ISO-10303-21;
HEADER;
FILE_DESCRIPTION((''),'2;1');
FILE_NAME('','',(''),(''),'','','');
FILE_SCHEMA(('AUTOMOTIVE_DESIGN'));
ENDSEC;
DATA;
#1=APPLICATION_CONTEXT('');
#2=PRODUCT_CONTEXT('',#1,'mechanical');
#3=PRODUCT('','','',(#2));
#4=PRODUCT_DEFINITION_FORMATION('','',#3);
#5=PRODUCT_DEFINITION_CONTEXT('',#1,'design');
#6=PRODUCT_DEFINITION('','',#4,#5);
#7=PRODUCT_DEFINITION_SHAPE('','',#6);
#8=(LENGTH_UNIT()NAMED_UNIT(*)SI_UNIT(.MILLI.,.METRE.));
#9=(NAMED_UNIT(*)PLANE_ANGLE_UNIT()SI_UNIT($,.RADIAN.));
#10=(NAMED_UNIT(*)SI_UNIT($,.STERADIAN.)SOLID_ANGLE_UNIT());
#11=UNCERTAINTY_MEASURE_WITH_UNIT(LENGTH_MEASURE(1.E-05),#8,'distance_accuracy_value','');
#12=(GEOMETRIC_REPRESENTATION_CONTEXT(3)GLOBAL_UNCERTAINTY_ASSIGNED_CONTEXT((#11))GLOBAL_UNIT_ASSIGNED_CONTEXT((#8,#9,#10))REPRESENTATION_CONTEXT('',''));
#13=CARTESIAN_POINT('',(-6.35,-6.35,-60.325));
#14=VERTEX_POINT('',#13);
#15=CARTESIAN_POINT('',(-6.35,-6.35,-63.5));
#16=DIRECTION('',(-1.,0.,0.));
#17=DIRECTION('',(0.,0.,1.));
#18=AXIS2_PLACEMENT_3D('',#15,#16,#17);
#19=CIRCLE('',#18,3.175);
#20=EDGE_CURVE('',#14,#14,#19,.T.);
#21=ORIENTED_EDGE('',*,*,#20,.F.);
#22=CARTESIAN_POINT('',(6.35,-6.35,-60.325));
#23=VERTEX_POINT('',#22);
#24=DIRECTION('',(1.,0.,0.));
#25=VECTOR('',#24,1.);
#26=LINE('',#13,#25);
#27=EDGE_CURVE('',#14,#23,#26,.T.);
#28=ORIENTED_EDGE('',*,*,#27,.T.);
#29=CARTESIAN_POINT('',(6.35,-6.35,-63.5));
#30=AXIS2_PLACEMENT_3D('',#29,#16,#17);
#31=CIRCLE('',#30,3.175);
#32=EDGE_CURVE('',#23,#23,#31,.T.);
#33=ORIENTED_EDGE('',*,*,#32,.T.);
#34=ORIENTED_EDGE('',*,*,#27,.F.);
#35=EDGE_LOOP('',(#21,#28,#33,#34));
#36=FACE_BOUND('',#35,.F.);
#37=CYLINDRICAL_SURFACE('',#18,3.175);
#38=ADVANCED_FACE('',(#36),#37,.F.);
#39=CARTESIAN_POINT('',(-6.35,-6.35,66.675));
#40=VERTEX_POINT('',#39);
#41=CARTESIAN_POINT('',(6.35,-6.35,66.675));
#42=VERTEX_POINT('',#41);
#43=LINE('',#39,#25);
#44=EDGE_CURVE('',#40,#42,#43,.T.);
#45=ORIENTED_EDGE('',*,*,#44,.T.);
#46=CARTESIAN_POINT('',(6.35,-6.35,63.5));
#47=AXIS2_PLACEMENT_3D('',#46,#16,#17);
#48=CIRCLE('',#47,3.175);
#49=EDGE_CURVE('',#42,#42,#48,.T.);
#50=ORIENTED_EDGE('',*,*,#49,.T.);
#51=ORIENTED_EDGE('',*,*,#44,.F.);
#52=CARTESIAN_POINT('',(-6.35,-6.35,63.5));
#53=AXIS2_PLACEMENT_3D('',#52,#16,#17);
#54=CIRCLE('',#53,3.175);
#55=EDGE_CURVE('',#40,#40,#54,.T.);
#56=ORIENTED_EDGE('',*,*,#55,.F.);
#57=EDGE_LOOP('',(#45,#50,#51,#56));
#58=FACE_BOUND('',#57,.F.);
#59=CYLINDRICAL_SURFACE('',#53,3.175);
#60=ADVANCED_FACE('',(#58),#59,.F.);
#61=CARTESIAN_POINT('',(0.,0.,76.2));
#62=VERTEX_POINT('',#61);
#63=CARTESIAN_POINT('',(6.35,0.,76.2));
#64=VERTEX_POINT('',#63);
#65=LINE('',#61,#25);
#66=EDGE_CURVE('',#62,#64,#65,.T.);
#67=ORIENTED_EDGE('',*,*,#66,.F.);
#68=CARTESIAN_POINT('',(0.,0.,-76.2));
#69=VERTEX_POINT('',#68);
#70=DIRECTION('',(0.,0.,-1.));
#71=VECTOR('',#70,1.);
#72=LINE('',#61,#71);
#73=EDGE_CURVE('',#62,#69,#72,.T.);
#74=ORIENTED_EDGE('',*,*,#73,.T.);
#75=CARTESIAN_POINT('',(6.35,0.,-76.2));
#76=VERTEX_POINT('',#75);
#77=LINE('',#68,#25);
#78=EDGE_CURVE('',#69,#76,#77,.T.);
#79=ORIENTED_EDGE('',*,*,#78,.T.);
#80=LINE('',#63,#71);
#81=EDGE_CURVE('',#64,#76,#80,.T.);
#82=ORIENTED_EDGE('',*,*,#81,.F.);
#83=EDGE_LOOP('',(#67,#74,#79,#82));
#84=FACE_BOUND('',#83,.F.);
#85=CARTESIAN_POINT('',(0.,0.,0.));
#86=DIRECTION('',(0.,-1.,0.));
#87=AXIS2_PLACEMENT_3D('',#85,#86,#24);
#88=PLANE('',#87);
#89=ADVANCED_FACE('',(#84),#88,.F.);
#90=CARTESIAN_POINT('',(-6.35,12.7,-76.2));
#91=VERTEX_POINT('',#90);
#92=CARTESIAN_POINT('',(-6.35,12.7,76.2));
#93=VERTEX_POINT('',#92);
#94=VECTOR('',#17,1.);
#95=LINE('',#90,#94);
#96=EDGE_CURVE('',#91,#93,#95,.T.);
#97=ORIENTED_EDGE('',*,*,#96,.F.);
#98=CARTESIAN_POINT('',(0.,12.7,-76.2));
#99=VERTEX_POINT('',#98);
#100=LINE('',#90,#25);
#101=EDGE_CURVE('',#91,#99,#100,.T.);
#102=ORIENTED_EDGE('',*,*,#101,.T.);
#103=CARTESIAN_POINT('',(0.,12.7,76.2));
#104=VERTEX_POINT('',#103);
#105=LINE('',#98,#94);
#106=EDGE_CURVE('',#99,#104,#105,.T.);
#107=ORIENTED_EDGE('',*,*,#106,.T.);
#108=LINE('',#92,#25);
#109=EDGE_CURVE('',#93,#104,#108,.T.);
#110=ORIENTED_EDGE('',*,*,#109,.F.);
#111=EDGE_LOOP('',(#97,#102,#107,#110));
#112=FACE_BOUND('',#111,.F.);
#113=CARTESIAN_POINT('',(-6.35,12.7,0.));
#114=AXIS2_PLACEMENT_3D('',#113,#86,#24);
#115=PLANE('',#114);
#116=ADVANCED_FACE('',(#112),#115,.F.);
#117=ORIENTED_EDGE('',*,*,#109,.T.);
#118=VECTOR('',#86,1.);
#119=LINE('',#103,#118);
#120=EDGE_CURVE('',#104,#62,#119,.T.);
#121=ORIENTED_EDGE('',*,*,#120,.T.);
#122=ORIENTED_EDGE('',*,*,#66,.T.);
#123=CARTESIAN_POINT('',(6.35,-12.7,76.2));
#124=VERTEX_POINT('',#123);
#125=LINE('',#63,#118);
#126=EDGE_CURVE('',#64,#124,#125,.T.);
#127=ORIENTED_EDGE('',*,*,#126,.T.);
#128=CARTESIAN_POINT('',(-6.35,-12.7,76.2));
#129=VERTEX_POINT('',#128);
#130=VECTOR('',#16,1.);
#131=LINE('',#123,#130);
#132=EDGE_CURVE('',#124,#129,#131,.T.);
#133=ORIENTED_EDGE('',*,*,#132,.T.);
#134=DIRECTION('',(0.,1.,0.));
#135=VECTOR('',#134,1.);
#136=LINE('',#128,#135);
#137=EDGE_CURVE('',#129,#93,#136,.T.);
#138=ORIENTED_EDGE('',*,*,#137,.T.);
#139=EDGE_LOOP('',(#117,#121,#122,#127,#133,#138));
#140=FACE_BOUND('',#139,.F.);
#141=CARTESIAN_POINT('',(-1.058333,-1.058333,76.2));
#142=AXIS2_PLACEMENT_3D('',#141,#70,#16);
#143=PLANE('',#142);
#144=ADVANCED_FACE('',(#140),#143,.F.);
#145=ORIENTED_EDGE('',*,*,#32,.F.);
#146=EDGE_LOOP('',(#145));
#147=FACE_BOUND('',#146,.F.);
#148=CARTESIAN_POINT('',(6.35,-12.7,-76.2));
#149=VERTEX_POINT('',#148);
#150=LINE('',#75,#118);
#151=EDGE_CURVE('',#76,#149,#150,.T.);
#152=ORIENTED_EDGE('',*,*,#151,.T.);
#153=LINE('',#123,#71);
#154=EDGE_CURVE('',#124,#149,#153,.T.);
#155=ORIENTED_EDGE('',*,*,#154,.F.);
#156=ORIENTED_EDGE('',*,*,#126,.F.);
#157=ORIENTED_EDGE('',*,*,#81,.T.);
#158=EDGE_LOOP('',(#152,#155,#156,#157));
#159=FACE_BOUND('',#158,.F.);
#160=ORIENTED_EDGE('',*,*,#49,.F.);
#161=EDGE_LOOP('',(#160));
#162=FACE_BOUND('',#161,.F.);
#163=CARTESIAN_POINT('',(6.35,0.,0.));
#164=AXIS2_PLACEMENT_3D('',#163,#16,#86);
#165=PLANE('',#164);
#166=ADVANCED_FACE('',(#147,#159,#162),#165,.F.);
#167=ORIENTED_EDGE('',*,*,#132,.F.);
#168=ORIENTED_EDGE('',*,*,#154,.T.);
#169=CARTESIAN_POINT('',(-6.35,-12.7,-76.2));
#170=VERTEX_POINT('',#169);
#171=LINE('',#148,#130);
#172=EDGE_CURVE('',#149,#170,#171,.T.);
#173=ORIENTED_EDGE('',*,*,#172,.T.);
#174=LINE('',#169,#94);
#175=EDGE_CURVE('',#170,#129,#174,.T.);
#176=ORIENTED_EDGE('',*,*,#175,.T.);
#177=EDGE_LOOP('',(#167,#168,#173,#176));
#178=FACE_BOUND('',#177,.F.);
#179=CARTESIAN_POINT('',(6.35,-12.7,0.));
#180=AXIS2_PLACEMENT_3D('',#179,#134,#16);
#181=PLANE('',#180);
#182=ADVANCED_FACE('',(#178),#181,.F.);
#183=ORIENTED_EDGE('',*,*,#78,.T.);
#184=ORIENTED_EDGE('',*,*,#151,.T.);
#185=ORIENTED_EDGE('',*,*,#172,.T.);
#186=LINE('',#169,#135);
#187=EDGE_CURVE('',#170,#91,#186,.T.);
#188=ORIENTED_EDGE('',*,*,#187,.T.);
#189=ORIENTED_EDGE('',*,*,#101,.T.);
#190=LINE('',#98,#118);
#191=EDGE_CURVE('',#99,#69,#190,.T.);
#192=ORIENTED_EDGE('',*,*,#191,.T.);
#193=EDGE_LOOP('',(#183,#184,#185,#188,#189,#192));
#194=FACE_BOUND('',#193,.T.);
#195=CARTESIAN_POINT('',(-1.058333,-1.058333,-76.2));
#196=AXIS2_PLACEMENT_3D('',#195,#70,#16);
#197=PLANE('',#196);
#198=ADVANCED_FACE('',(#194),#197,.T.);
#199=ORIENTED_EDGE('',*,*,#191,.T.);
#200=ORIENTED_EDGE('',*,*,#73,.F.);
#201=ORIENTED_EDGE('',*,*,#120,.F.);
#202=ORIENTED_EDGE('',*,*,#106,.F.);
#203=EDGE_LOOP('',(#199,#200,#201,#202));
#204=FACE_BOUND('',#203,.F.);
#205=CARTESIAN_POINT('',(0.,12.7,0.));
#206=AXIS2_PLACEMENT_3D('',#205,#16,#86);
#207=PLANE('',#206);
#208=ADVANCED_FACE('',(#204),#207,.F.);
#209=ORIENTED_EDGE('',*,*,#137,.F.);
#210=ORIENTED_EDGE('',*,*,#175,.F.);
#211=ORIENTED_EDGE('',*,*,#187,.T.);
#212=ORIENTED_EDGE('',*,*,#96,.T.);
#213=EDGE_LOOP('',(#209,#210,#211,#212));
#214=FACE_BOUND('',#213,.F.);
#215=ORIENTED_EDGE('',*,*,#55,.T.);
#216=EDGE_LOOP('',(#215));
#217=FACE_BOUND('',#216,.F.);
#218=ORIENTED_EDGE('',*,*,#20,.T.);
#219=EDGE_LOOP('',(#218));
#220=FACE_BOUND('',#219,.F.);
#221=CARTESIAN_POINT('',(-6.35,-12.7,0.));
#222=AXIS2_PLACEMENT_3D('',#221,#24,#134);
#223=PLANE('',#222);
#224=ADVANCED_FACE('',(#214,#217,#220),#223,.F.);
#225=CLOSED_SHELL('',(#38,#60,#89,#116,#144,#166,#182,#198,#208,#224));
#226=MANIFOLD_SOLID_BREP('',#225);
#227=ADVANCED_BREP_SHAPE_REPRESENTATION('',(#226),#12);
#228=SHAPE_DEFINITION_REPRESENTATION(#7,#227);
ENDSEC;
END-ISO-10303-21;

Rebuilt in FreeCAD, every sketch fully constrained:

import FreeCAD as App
import Part
import Sketcher
from FreeCAD import Vector
Q = App.Units.Quantity

doc = App.newDocument("Part")
params = doc.addObject("Spreadsheet::Sheet", "Params")
for row, (alias, value) in enumerate([
    ("sketch1_height", "1 in"),
    ("pad1_length", "6 in"),
    ("sketch2_diameter", "0.25 in"),
], start=1):
    params.set(f"A{row}", alias)
    params.set(f"B{row}", "=" + value)
    params.setAlias(f"B{row}", alias)

body = doc.addObject("PartDesign::Body", "Body")

sketch1 = body.newObject("Sketcher::SketchObject", "Sketch")
sketch1.AttachmentSupport = (doc.getObject("XY_Plane"), [""])
sketch1.MapMode = "FlatFace"
sketch1.addGeometry([
    Part.LineSegment(Vector(0, 0, 0), Vector(0, 12.7, 0)),
    Part.LineSegment(Vector(0, 12.7, 0), Vector(-6.35, 12.7, 0)),
    Part.LineSegment(Vector(-6.35, 12.7, 0), Vector(-6.35, -12.7, 0)),
    Part.LineSegment(Vector(-6.35, -12.7, 0), Vector(6.35, -12.7, 0)),
    Part.LineSegment(Vector(6.35, -12.7, 0), Vector(6.35, 0, 0)),
    Part.LineSegment(Vector(6.35, 0, 0), Vector(0, 0, 0)),
], False)
sketch1.addConstraint([
    Sketcher.Constraint("Coincident", 0, 2, 1, 1),
    Sketcher.Constraint("Coincident", 1, 2, 2, 1),
    Sketcher.Constraint("Coincident", 2, 2, 3, 1),
    Sketcher.Constraint("Coincident", 3, 2, 4, 1),
    Sketcher.Constraint("Coincident", 4, 2, 5, 1),
    Sketcher.Constraint("Coincident", 5, 2, 0, 1),
    Sketcher.Constraint("Vertical", 0),
    Sketcher.Constraint("Horizontal", 1),
    Sketcher.Constraint("Vertical", 2),
    Sketcher.Constraint("Horizontal", 3),
    Sketcher.Constraint("Vertical", 4),
    Sketcher.Constraint("Horizontal", 5),
    Sketcher.Constraint("Coincident", 5, 2, -1, 1),
    Sketcher.Constraint("Symmetric", 1, 2, 3, 2, -1, 1),
    Sketcher.Constraint("Equal", 3, 0),
    Sketcher.Constraint("DistanceY", 2, 2, 2, 1, Q("1 in")),
])
sketch1.setExpression("Constraints[15]", "Params.sketch1_height")
pad1 = body.newObject("PartDesign::Pad", "Pad")
pad1.Profile = sketch1
pad1.setExpression("Length", "Params.pad1_length")
pad1.Midplane = True

sketch2 = body.newObject("Sketcher::SketchObject", "Sketch001")
sketch2.AttachmentSupport = (doc.getObject("YZ_Plane"), [""])
sketch2.MapMode = "FlatFace"
sketch2.AttachmentOffset = App.Placement(Vector(0, 0, -0.25 * 25.4), App.Rotation())
sketch2.addGeometry([
    Part.Circle(Vector(-6.35, -63.5, 0), Vector(0, 0, 1), 3.175),
    Part.Circle(Vector(-6.35, 63.5, 0), Vector(0, 0, 1), 3.175),
], False)
sketch2.addConstraint([
    Sketcher.Constraint("Equal", 0, 1),
    Sketcher.Constraint("Symmetric", 0, 3, 1, 3, -1),
    Sketcher.Constraint("Diameter", 0, Q("0.25 in")),
    Sketcher.Constraint("DistanceY", 0, 3, 1, 3, Q("5 in")),
    Sketcher.Constraint("DistanceX", 0, 3, -1, 1, Q("0.25 in")),
])
sketch2.setExpression("Constraints[2]", "Params.sketch2_diameter")
pocket1 = body.newObject("PartDesign::Pocket", "Pocket")
pocket1.Profile = sketch2
pocket1.Type = "ThroughAll"
pocket1.Midplane = True

doc.recompute()
